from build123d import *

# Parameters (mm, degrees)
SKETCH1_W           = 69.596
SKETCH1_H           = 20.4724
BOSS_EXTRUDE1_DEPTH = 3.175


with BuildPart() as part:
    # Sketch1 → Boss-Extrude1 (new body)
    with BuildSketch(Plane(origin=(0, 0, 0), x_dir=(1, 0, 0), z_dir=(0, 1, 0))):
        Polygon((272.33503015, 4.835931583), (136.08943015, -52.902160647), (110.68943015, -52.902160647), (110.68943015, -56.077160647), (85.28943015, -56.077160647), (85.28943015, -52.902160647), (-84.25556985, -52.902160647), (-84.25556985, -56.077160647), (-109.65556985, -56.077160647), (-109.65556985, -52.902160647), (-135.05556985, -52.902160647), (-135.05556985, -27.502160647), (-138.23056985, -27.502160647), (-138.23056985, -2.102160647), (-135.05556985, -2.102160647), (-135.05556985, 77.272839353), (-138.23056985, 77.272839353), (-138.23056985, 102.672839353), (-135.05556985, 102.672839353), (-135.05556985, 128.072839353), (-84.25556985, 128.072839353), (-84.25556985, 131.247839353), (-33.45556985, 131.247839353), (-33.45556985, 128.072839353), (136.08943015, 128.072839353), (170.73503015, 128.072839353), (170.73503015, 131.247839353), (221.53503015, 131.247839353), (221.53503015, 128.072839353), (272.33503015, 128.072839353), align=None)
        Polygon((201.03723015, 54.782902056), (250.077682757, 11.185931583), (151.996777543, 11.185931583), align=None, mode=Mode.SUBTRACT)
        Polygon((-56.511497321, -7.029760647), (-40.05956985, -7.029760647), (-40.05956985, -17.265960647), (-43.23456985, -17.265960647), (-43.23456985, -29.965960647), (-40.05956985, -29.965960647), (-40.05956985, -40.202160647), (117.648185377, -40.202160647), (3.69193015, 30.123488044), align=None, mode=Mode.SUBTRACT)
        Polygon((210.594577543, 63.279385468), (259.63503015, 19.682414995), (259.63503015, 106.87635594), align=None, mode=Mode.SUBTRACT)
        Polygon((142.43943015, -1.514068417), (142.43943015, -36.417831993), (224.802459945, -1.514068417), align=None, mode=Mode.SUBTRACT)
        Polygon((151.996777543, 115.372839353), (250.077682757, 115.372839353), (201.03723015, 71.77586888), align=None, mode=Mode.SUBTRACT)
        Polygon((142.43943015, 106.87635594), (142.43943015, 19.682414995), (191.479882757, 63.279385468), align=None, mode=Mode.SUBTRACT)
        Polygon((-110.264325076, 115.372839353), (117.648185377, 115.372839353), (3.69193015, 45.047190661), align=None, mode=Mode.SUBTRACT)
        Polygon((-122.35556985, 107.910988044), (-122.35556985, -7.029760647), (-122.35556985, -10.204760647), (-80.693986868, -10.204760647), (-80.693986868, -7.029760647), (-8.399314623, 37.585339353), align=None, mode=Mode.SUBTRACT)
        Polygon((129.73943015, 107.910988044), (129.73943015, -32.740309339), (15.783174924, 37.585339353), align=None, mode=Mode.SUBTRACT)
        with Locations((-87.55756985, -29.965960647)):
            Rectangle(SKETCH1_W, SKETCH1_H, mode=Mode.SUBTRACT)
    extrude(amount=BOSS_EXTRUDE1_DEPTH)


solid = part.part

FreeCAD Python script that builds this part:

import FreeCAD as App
import Part
import Sketcher
from FreeCAD import Vector
Q = App.Units.Quantity


def add_polygon(sketch, points):
    """Adds a closed chain of lines whose ends are joined by coincident constraints."""
    first, n = sketch.GeometryCount, len(points)
    for a, b in zip(points, points[1:] + points[:1]):
        sketch.addGeometry(Part.LineSegment(App.Vector(*a, 0), App.Vector(*b, 0)), False)
    for i in range(n):
        sketch.addConstraint(Sketcher.Constraint("Coincident", first + i, 2, first + (i + 1) % n, 1))

doc = App.newDocument("Part")
body = doc.addObject("PartDesign::Body", "Body")

# Sketch on XZ plane
sketch1 = body.newObject("Sketcher::SketchObject", "Sketch")
sketch1.AttachmentSupport = (doc.getObject("XZ_Plane"), [""])
sketch1.MapMode = "FlatFace"
add_polygon(sketch1, [(136.1, 52.9), (272.3, -4.8), (272.3, -128.1), (221.5, -128.1), (221.5, -131.2), (170.7, -131.2), (170.7, -128.1), (-33.5, -128.1), (-33.5, -131.2), (-84.3, -131.2), (-84.3, -128.1), (-135.1, -128.1), (-135.1, -102.7), (-138.2, -102.7), (-138.2, -77.3), (-135.1, -77.3), (-135.1, 2.1), (-138.2, 2.1), (-138.2, 27.5), (-135.1, 27.5), (-135.1, 52.9), (-109.7, 52.9), (-109.7, 56.1), (-84.3, 56.1), (-84.3, 52.9), (85.3, 52.9), (85.3, 56.1), (110.7, 56.1), (110.7, 52.9)])  # lines 0-28
add_polygon(sketch1, [(142.4, 1.5), (224.8, 1.5), (142.4, 36.4)])  # lines 29-31
add_polygon(sketch1, [(201, -54.8), (250.1, -11.2), (152, -11.2)])  # lines 32-34
add_polygon(sketch1, [(129.7, -107.9), (129.7, 32.7), (15.8, -37.6)])  # lines 35-37
add_polygon(sketch1, [(-56.5, 7), (3.7, -30.1), (117.6, 40.2), (-40.1, 40.2), (-40.1, 30), (-43.2, 30), (-43.2, 17.3), (-40.1, 17.3), (-40.1, 7)])  # lines 38-46
add_polygon(sketch1, [(-122.4, 40.2), (-122.4, 19.7), (-52.8, 19.7), (-52.8, 40.2)])  # lines 47-50
add_polygon(sketch1, [(210.6, -63.3), (259.6, -106.9), (259.6, -19.7)])  # lines 51-53
add_polygon(sketch1, [(142.4, -106.9), (191.5, -63.3), (142.4, -19.7)])  # lines 54-56
add_polygon(sketch1, [(152, -115.4), (250.1, -115.4), (201, -71.8)])  # lines 57-59
add_polygon(sketch1, [(-122.4, -107.9), (-8.4, -37.6), (-80.7, 7), (-80.7, 10.2), (-122.4, 10.2)])  # lines 60-64
add_polygon(sketch1, [(-110.3, -115.4), (117.6, -115.4), (3.7, -45)])  # lines 65-67
sketch1.addConstraint([
    Sketcher.Constraint("Vertical", 1),
    Sketcher.Constraint("Horizontal", 2),
    Sketcher.Constraint("Vertical", 3),
    Sketcher.Constraint("Horizontal", 4),
    Sketcher.Constraint("Vertical", 5),
    Sketcher.Constraint("Horizontal", 6),
    Sketcher.Constraint("Vertical", 7),
    Sketcher.Constraint("Horizontal", 8),
    Sketcher.Constraint("Vertical", 9),
    Sketcher.Constraint("Horizontal", 10),
    Sketcher.Constraint("Vertical", 11),
    Sketcher.Constraint("Horizontal", 12),
    Sketcher.Constraint("Vertical", 13),
    Sketcher.Constraint("Horizontal", 14),
    Sketcher.Constraint("Vertical", 15),
    Sketcher.Constraint("Horizontal", 16),
    Sketcher.Constraint("Vertical", 17),
    Sketcher.Constraint("Horizontal", 18),
    Sketcher.Constraint("Vertical", 19),
    Sketcher.Constraint("Horizontal", 20),
    Sketcher.Constraint("Vertical", 21),
    Sketcher.Constraint("Horizontal", 22),
    Sketcher.Constraint("Vertical", 23),
    Sketcher.Constraint("Horizontal", 24),
    Sketcher.Constraint("Vertical", 25),
    Sketcher.Constraint("Horizontal", 26),
    Sketcher.Constraint("Vertical", 27),
    Sketcher.Constraint("Horizontal", 28),
    Sketcher.Constraint("Horizontal", 29),
    Sketcher.Constraint("Vertical", 31),
    Sketcher.Constraint("Horizontal", 33),
    Sketcher.Constraint("Vertical", 35),
    Sketcher.Constraint("Horizontal", 40),
    Sketcher.Constraint("Vertical", 41),
    Sketcher.Constraint("Horizontal", 42),
    Sketcher.Constraint("Vertical", 43),
    Sketcher.Constraint("Horizontal", 44),
    Sketcher.Constraint("Vertical", 45),
    Sketcher.Constraint("Horizontal", 46),
    Sketcher.Constraint("Vertical", 47),
    Sketcher.Constraint("Horizontal", 48),
    Sketcher.Constraint("Vertical", 49),
    Sketcher.Constraint("Horizontal", 50),
    Sketcher.Constraint("Vertical", 52),
    Sketcher.Constraint("Vertical", 56),
    Sketcher.Constraint("Horizontal", 57),
    Sketcher.Constraint("Vertical", 62),
    Sketcher.Constraint("Horizontal", 63),
    Sketcher.Constraint("Vertical", 64),
    Sketcher.Constraint("Horizontal", 65),
    Sketcher.Constraint("Parallel", 0, 30),
    Sketcher.Constraint("Parallel", 37, 38),
    Sketcher.Constraint("Parallel", 36, 39),
    Sketcher.Constraint("Parallel", 34, 51),
    Sketcher.Constraint("Parallel", 32, 53),
    Sketcher.Constraint("Parallel", 53, 54),
    Sketcher.Constraint("Parallel", 51, 55),
    Sketcher.Constraint("Parallel", 55, 58),
    Sketcher.Constraint("Parallel", 54, 59),
    Sketcher.Constraint("Parallel", 39, 60),
    Sketcher.Constraint("Parallel", 38, 61),
    Sketcher.Constraint("Parallel", 61, 66),
    Sketcher.Constraint("Parallel", 60, 67),
    Sketcher.Constraint("Horizontal", 2, 2, 5, 2),
    Sketcher.Constraint("Horizontal", 4, 2, 7, 2),
    Sketcher.Constraint("Horizontal", 6, 2, 9, 2),
    Sketcher.Constraint("Horizontal", 20, 2, 23, 2),
    Sketcher.Constraint("Horizontal", 22, 2, 25, 2),
    Sketcher.Constraint("Horizontal", 24, 2, 27, 2),
    Sketcher.Constraint("Horizontal", 40, 2, 49, 2),
    Sketcher.Constraint("Horizontal", 53, 2, 54, 2),
    Sketcher.Constraint("Horizontal", 52, 2, 55, 2),
    Sketcher.Constraint("Horizontal", 51, 2, 56, 2),
    Sketcher.Constraint("Horizontal", 36, 2, 60, 2),
    Sketcher.Constraint("Horizontal", 46, 2, 61, 2),
    Sketcher.Constraint("Horizontal", 37, 2, 64, 2),
    Sketcher.Constraint("Horizontal", 59, 2, 65, 2),
    Sketcher.Constraint("Vertical", 11, 2, 14, 2),
    Sketcher.Constraint("Vertical", 13, 2, 16, 2),
    Sketcher.Constraint("Vertical", 15, 2, 18, 2),
    Sketcher.Constraint("Vertical", 9, 2, 22, 2),
    Sketcher.Constraint("Vertical", 41, 2, 44, 2),
    Sketcher.Constraint("Vertical", 31, 2, 55, 2),
    Sketcher.Constraint("Vertical", 32, 2, 57, 2),
    Sketcher.Constraint("Vertical", 34, 2, 58, 2),
    Sketcher.Constraint("Vertical", 50, 2, 63, 2),
    Sketcher.Constraint("Vertical", 39, 2, 65, 2),
    Sketcher.Constraint("Vertical", 38, 2, 66, 2),
    Sketcher.Constraint("Equal", 2, 4),
    Sketcher.Constraint("Equal", 4, 8),
    Sketcher.Constraint("Equal", 8, 10),
    Sketcher.Constraint("Equal", 20, 22),
    Sketcher.Constraint("Equal", 22, 26),
    Sketcher.Constraint("Equal", 26, 28),
    Sketcher.Constraint("Equal", 18, 42),
    Sketcher.Constraint("Equal", 44, 3),
    Sketcher.Constraint("Equal", 28, 11),
    Sketcher.Constraint("Equal", 11, 13),
    Sketcher.Constraint("Equal", 13, 17),
    Sketcher.Constraint("Equal", 17, 19),
    Sketcher.Constraint("Equal", 9, 21),
    Sketcher.Constraint("Equal", 41, 45),
    Sketcher.Constraint("Equal", 27, 62),
    Sketcher.Constraint("Equal", 36, 37),
    Sketcher.Constraint("Equal", 37, 39),
    Sketcher.Constraint("Equal", 34, 51),
    Sketcher.Constraint("DistanceX", 2, 2, 2, 1, Q("2 in")),
    Sketcher.Constraint("DistanceY", 43, 2, 43, 1, Q("0.5 in")),
    Sketcher.Constraint("DistanceX", 48, 1, 48, 2, Q("2.74 in")),
    Sketcher.Constraint("DistanceX", 6, 2, 6, 1, Q("8.039 in")),
    Sketcher.Constraint("DistanceX", 12, 2, 12, 1, Q("0.125 in")),
    Sketcher.Constraint("DistanceX", 24, 1, 24, 2, Q("6.675 in")),
    Sketcher.Constraint("DistanceY", 15, 1, 15, 2, Q("3.125 in")),
    Sketcher.Constraint("DistanceY", 41, 2, 41, 1, Q("0.403 in")),
    Sketcher.Constraint("DistanceY", 47, 2, 47, 1, Q("0.806 in")),
    Sketcher.Constraint("DistanceX", 29, 1, 29, 2, Q("82.36303 mm")),
    Sketcher.Constraint("DistanceX", 65, 1, 65, 2, Q("227.91251 mm")),
    Sketcher.Constraint("DistanceY", 52, 1, 52, 2, Q("87.193941 mm")),
    Sketcher.Constraint("DistanceY", 64, 2, 64, 1, Q("118.115749 mm")),
    Sketcher.Constraint("Distance", 0, Q("147.974832 mm")),
    Sketcher.Constraint("Distance", 36, Q("133.909391 mm")),
    Sketcher.Constraint("DistanceX", 33, 2, 33, 1, Q("98.080905 mm")),
    Sketcher.Constraint("DistanceX", 40, 2, 40, 1, Q("157.707755 mm")),
    Sketcher.Constraint("DistanceX", -1, 1, 0, 2, Q("272.33503 mm")),
    Sketcher.Constraint("DistanceY", 0, 2, -1, 1, Q("4.835932 mm")),
    Sketcher.Constraint("DistanceX", -1, 1, 29, 2, Q("224.80246 mm")),
    Sketcher.Constraint("DistanceY", -1, 1, 29, 2, Q("1.514068 mm")),
    Sketcher.Constraint("DistanceY", 32, 2, -1, 1, Q("11.185932 mm")),
    Sketcher.Constraint("DistanceX", -1, 1, 34, 2, Q("201.03723 mm")),
    Sketcher.Constraint("DistanceX", -1, 1, 35, 2, Q("129.73943 mm")),
    Sketcher.Constraint("DistanceY", -1, 1, 35, 2, Q("32.740309 mm")),
    Sketcher.Constraint("DistanceX", -1, 1, 38, 2, Q("3.69193 mm")),
    Sketcher.Constraint("DistanceX", 47, 2, -1, 1, Q("122.35557 mm")),
    Sketcher.Constraint("DistanceX", -1, 1, 51, 2, Q("259.63503 mm")),
    Sketcher.Constraint("DistanceY", 57, 2, -1, 1, Q("115.372839 mm")),
    Sketcher.Constraint("DistanceY", 51, 2, -1, 1, Q("106.876356 mm")),
])
pad1 = body.newObject("PartDesign::Pad", "Pad")
pad1.Profile = sketch1
pad1.Length = Q("0.125 in")
pad1.Reversed = True

doc.recompute()
